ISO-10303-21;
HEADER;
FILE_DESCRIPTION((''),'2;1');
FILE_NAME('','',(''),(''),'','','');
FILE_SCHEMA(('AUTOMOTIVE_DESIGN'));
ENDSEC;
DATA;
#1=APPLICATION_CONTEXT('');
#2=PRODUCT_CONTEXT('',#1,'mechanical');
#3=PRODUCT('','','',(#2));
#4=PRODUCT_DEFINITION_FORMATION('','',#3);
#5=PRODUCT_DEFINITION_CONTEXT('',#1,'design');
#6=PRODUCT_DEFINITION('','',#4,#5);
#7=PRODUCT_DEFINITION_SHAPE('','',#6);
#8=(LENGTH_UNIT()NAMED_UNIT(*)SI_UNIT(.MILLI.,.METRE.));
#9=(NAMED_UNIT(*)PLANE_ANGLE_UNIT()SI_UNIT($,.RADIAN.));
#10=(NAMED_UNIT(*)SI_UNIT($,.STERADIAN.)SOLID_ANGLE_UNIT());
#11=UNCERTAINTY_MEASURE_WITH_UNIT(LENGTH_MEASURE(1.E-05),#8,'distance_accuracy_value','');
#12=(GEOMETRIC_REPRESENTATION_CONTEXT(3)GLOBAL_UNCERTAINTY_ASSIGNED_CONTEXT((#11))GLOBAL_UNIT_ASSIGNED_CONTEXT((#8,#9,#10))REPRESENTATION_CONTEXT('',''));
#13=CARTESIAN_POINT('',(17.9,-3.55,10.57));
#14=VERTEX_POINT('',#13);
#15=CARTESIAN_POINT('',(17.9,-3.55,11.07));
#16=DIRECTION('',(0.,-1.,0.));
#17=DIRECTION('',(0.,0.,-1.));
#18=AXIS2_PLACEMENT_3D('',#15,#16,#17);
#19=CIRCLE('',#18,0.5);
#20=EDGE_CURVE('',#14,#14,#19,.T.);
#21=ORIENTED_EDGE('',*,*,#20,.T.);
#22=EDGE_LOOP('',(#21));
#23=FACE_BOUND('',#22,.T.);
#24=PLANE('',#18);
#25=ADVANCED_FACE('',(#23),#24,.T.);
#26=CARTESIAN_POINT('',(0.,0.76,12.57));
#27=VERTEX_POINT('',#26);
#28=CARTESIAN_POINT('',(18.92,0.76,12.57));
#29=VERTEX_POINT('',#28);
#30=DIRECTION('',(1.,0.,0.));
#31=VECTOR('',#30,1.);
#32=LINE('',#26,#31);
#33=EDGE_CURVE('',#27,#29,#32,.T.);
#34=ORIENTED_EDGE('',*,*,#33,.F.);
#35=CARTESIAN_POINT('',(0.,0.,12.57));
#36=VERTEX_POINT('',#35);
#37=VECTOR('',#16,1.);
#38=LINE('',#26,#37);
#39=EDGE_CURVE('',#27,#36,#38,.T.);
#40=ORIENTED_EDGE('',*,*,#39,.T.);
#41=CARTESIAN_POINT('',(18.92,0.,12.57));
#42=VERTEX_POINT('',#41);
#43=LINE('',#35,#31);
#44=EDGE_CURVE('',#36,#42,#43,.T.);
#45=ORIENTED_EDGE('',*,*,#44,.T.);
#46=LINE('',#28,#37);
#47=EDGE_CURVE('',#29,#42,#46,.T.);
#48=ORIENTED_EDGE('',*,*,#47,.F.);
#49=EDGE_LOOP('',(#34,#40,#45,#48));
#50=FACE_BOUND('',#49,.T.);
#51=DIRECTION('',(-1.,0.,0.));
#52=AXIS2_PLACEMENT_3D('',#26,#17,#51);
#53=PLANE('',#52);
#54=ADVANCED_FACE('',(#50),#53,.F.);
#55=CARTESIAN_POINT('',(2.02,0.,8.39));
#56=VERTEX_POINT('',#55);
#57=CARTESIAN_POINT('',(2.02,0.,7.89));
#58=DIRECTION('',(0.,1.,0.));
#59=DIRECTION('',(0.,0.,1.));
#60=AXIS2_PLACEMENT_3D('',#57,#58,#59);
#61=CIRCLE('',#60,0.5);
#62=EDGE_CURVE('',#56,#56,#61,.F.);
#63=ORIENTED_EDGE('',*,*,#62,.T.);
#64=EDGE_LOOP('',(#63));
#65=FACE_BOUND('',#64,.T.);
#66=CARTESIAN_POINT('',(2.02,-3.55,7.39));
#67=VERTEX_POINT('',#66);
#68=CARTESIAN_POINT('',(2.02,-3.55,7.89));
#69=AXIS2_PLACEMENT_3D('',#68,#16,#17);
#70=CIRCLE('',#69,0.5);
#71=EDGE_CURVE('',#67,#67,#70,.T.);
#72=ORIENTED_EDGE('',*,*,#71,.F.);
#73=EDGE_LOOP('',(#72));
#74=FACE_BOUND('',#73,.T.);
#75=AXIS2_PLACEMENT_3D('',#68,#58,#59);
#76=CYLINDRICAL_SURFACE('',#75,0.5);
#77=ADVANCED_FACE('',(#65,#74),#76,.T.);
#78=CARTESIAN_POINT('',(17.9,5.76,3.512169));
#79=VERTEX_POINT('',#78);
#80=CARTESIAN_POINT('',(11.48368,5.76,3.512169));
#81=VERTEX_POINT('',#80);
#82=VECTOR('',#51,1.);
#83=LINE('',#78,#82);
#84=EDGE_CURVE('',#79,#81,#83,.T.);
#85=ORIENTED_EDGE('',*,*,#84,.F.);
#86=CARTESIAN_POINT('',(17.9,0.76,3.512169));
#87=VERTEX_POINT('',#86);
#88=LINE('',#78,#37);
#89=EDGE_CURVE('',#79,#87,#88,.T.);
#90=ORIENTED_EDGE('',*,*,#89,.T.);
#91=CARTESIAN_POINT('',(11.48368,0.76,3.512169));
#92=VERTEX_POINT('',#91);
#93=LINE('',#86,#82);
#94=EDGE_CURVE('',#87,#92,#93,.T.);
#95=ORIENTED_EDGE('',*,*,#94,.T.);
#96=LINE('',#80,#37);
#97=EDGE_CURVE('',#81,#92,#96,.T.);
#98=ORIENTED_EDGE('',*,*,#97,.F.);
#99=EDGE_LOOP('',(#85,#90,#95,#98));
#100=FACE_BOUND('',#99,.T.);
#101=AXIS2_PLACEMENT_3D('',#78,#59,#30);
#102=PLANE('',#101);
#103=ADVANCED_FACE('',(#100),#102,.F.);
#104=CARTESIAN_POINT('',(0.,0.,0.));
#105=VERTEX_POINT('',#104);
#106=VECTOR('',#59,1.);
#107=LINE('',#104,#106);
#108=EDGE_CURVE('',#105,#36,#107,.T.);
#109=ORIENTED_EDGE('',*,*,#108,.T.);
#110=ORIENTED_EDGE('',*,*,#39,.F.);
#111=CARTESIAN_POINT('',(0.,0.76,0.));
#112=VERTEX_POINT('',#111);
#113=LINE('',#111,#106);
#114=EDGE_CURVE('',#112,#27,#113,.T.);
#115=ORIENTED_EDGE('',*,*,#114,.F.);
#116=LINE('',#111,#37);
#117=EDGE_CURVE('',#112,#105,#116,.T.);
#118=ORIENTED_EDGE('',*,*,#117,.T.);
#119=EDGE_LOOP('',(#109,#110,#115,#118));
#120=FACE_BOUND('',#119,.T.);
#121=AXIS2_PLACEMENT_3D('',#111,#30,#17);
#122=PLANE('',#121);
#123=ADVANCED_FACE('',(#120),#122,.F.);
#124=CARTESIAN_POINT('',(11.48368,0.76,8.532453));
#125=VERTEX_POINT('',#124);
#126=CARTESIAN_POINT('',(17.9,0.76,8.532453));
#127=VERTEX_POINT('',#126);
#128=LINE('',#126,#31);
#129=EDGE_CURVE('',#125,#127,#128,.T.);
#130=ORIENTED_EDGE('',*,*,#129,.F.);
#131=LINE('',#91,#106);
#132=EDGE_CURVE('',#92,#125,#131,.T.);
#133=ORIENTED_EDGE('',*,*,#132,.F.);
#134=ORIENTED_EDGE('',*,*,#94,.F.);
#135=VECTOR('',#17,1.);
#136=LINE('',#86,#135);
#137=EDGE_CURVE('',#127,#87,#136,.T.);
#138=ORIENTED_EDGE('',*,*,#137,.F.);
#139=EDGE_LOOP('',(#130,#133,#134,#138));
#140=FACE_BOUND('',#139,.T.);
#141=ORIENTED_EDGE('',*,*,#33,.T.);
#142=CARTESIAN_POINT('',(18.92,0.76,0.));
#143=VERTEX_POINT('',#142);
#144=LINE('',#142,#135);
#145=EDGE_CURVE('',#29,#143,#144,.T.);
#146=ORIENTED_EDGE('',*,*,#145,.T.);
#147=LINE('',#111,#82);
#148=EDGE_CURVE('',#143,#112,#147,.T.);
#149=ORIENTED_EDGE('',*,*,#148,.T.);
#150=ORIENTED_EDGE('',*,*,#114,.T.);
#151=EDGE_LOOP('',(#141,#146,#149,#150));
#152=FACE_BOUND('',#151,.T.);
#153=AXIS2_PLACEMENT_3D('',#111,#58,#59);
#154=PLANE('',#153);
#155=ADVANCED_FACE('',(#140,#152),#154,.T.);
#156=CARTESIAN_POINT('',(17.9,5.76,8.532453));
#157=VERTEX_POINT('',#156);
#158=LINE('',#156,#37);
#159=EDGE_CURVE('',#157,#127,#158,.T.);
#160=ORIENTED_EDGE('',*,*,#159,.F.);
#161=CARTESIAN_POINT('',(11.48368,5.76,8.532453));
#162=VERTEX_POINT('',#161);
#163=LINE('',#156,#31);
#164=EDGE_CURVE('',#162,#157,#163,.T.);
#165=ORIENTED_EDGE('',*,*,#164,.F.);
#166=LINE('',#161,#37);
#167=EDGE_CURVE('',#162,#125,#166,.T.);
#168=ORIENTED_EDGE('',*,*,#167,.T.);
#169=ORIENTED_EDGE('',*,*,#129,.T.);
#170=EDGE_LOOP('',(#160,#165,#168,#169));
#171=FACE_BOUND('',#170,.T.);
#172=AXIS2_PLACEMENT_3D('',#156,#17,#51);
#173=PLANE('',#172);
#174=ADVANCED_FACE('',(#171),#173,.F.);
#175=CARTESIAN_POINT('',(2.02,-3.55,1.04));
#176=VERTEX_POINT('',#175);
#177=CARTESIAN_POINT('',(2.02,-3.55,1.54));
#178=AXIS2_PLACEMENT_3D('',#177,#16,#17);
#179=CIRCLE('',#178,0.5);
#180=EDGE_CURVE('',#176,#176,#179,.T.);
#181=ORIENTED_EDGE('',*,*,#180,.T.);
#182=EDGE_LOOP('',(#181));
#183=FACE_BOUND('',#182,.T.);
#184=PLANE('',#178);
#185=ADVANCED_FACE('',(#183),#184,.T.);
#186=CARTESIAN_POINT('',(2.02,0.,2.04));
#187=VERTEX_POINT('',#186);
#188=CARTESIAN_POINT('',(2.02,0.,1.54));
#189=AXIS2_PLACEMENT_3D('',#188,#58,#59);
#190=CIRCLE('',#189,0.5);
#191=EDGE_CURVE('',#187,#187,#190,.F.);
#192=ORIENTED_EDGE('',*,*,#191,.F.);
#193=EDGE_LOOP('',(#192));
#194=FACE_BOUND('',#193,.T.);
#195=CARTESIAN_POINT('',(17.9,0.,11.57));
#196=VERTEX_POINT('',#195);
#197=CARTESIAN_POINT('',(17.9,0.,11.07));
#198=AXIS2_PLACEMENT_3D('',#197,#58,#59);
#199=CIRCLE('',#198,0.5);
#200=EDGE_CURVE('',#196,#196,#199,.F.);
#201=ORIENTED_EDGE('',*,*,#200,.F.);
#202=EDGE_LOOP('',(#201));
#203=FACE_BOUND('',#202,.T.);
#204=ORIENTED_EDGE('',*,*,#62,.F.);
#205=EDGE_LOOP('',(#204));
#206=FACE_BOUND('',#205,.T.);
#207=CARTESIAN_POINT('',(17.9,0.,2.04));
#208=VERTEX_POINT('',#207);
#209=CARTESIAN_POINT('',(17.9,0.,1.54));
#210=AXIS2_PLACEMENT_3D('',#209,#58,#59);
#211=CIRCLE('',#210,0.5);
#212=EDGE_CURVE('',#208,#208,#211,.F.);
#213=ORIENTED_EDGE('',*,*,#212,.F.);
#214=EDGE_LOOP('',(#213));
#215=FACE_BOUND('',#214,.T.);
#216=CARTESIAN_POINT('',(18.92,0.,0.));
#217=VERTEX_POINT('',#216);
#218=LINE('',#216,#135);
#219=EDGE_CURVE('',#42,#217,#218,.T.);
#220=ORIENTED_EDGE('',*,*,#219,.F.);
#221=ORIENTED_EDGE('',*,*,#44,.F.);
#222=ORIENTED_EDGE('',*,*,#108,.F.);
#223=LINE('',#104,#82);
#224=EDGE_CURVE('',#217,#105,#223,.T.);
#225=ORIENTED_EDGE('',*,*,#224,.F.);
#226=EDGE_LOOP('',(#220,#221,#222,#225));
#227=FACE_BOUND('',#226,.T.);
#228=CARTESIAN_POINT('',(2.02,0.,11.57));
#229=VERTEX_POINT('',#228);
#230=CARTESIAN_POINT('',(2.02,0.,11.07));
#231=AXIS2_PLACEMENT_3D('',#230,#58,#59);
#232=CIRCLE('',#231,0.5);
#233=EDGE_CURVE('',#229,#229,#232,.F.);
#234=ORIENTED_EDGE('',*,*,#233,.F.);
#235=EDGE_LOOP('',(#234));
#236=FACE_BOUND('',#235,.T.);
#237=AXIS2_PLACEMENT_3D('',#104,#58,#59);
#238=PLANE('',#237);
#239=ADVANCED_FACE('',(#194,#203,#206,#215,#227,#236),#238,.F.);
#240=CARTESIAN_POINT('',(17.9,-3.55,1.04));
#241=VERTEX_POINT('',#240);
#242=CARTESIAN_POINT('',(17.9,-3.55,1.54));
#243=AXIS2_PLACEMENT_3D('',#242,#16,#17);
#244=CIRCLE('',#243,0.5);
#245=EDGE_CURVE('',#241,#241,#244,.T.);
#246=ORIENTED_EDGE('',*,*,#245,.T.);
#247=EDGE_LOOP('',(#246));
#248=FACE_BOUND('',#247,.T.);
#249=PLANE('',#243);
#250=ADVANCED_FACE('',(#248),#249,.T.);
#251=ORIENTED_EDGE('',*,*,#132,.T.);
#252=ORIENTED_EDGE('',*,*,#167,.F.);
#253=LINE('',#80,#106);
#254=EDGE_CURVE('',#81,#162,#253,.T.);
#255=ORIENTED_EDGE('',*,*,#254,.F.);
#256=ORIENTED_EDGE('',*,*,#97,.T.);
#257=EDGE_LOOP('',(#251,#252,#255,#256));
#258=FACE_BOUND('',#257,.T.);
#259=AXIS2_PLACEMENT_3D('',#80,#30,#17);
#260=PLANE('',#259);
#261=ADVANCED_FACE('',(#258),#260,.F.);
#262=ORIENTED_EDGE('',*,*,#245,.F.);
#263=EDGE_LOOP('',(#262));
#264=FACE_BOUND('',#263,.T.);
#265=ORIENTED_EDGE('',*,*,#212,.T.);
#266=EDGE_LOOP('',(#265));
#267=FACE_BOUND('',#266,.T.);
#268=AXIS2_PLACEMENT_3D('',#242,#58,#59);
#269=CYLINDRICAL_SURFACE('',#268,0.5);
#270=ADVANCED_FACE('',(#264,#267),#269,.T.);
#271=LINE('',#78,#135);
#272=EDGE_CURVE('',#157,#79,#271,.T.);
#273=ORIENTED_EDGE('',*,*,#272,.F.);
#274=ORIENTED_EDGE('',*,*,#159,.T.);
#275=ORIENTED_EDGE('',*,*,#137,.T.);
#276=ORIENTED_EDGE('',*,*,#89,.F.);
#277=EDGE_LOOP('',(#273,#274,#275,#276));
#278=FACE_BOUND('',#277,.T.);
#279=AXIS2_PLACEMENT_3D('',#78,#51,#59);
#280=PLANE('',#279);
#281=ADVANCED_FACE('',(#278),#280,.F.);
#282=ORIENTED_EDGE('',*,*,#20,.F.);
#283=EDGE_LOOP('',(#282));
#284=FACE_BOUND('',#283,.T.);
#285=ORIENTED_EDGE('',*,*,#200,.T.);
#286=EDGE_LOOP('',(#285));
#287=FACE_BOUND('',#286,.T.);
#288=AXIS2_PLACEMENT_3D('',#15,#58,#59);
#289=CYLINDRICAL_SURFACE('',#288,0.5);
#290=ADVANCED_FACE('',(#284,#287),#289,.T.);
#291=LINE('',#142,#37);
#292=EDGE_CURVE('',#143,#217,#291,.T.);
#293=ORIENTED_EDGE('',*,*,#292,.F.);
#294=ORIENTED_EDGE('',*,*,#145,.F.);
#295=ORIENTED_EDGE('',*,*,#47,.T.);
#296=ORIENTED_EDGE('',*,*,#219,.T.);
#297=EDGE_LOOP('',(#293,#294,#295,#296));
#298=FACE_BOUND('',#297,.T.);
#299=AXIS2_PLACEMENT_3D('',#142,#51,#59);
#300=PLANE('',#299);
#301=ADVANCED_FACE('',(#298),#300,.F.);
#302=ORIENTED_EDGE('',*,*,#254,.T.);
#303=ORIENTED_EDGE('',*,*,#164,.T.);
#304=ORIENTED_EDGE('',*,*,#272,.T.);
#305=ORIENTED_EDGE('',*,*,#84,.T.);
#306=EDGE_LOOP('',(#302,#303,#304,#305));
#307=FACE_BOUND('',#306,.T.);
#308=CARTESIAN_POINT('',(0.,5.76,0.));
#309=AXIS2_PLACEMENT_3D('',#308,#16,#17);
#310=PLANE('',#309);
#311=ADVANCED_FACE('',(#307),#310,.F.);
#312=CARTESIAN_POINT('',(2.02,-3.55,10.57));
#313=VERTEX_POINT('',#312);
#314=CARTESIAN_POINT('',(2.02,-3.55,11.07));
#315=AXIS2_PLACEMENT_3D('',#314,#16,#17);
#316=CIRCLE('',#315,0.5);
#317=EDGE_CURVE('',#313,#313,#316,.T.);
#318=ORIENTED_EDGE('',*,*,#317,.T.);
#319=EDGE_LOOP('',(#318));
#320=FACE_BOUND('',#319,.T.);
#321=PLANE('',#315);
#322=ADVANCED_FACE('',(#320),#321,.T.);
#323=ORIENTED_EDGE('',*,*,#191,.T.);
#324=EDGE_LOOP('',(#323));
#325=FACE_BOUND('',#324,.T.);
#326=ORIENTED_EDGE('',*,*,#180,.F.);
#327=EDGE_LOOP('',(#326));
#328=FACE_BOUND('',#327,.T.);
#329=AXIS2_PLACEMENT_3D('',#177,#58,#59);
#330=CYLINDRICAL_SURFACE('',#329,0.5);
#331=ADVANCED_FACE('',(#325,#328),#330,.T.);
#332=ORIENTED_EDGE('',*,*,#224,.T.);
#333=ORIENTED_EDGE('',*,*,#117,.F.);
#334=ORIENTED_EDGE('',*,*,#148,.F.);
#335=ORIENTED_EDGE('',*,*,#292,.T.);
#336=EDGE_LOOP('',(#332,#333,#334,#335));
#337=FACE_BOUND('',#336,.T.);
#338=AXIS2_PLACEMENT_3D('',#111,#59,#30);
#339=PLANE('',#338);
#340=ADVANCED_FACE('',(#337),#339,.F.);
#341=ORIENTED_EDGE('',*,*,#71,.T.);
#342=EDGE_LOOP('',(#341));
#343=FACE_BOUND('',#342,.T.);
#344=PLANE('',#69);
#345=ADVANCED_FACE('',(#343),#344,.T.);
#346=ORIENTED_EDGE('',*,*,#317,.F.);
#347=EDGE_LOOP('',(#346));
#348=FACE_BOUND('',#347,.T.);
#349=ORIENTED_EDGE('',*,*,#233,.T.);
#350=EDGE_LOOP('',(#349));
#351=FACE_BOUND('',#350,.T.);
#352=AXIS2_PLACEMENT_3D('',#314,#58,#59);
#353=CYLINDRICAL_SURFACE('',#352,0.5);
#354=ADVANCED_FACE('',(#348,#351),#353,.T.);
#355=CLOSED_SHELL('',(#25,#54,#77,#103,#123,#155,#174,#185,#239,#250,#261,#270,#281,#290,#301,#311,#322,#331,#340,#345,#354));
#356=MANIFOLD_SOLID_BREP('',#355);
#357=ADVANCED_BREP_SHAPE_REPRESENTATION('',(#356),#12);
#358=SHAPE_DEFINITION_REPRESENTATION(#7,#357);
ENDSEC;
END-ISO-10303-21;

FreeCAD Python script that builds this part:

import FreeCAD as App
import Part
import Sketcher
Q = App.Units.Quantity


def add_polygon(sketch, points):
    """Adds a closed chain of lines whose ends are joined by coincident constraints."""
    first, n = sketch.GeometryCount, len(points)
    for a, b in zip(points, points[1:] + points[:1]):
        sketch.addGeometry(Part.LineSegment(App.Vector(*a, 0), App.Vector(*b, 0)), False)
    for i in range(n):
        sketch.addConstraint(Sketcher.Constraint("Coincident", first + i, 2, first + (i + 1) % n, 1))

doc = App.newDocument("Part")
body = doc.addObject("PartDesign::Body", "Body")

sketch1 = doc.addObject("Sketcher::SketchObject", "Sketch")
body.addObject(sketch1)
sketch1.AttachmentSupport = (doc.XZ_Plane, [""])
sketch1.MapMode = "FlatFace"
add_polygon(sketch1, [(0, 0), (0, 12.57), (18.92, 12.57), (18.92, 0)])
sketch1.addConstraint([
    Sketcher.Constraint("Vertical", 0),
    Sketcher.Constraint("Horizontal", 1),
    Sketcher.Constraint("Vertical", 2),
    Sketcher.Constraint("Horizontal", 3),
    Sketcher.Constraint("Coincident", 3, 2, -1, 1),
    Sketcher.Constraint("DistanceX", 1, 1, 1, 2, Q("18.92 mm")),
    Sketcher.Constraint("DistanceY", 0, 1, 0, 2, Q("12.57 mm")),
])
pad1 = doc.addObject("PartDesign::Pad", "Pad")
body.addObject(pad1)
pad1.Profile = sketch1
pad1.Length = 0.76
pad1.Reversed = True

sketch2 = doc.addObject("Sketcher::SketchObject", "Sketch001")
body.addObject(sketch2)
sketch2.AttachmentSupport = (doc.XZ_Plane, [""])
sketch2.MapMode = "FlatFace"
sketch2.addGeometry([
    Part.Circle(App.Vector(2.02, 11.07, 0), App.Vector(0, 0, 1), 0.5),
    Part.Circle(App.Vector(17.9, 11.07, 0), App.Vector(0, 0, 1), 0.5),
    Part.Circle(App.Vector(2.02, 7.89, 0), App.Vector(0, 0, 1), 0.5),
    Part.Circle(App.Vector(2.02, 1.54, 0), App.Vector(0, 0, 1), 0.5),
    Part.Circle(App.Vector(17.9, 1.54, 0), App.Vector(0, 0, 1), 0.5),
], False)
sketch2.addConstraint([
    Sketcher.Constraint("Equal", 0, 1),
    Sketcher.Constraint("Equal", 1, 2),
    Sketcher.Constraint("Equal", 2, 3),
    Sketcher.Constraint("Equal", 3, 4),
    Sketcher.Constraint("Horizontal", 0, 3, 1, 3),
    Sketcher.Constraint("Horizontal", 3, 3, 4, 3),
    Sketcher.Constraint("Vertical", 0, 3, 2, 3),
    Sketcher.Constraint("Vertical", 2, 3, 3, 3),
    Sketcher.Constraint("Vertical", 1, 3, 4, 3),
    Sketcher.Constraint("Diameter", 0, Q("1 mm")),
    Sketcher.Constraint("DistanceX", -1, 1, 1, 3, Q("17.9 mm")),
    Sketcher.Constraint("DistanceX", -1, 1, 0, 3, Q("2.02 mm")),
    Sketcher.Constraint("DistanceY", -1, 1, 0, 3, Q("11.07 mm")),
    Sketcher.Constraint("DistanceY", -1, 1, 2, 3, Q("7.89 mm")),
    Sketcher.Constraint("DistanceY", -1, 1, 3, 3, Q("1.54 mm")),
])
pad2 = doc.addObject("PartDesign::Pad", "Pad001")
body.addObject(pad2)
pad2.Profile = sketch2
pad2.Length = 3.55

sketch3 = doc.addObject("Sketcher::SketchObject", "Sketch002")
body.addObject(sketch3)
sketch3.AttachmentSupport = (doc.XZ_Plane, [""])
sketch3.MapMode = "FlatFace"
sketch3.AttachmentOffset = App.Placement(App.Vector(0, 0, -0.76), App.Rotation())
add_polygon(sketch3, [(11.48368, 3.512169), (11.48368, 8.532453), (17.9, 8.532453), (17.9, 3.512169)])
sketch3.addConstraint([
    Sketcher.Constraint("Vertical", 0),
    Sketcher.Constraint("Horizontal", 1),
    Sketcher.Constraint("Vertical", 2),
    Sketcher.Constraint("Horizontal", 3),
    Sketcher.Constraint("DistanceX", -1, 1, 1, 2, Q("17.9 mm")),
    Sketcher.Constraint("DistanceX", 1, 1, 1, 2, Q("6.41632 mm")),
    Sketcher.Constraint("DistanceY", 0, 1, 0, 2, Q("5.020284 mm")),
    Sketcher.Constraint("DistanceY", -1, 1, 2, 2, Q("3.512169 mm")),
])
pad3 = doc.addObject("PartDesign::Pad", "Pad002")
body.addObject(pad3)
pad3.Profile = sketch3
pad3.Length = 5
pad3.Reversed = True

doc.recompute()
